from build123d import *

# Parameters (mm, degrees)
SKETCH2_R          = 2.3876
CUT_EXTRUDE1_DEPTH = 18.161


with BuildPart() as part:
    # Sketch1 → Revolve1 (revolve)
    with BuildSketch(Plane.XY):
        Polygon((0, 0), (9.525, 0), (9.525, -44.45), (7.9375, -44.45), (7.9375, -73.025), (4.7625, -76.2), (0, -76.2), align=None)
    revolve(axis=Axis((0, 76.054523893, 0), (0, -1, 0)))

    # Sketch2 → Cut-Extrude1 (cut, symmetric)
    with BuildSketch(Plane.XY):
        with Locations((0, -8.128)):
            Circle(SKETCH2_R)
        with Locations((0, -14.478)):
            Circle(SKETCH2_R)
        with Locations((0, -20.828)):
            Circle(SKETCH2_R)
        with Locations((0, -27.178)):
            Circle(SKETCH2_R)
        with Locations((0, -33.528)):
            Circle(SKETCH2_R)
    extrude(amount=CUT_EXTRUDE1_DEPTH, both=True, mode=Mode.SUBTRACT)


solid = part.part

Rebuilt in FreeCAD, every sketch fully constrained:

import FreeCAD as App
import Part
import Sketcher

V = App.Vector
Q = App.Units.Quantity

doc = App.newDocument("Part")
body = doc.addObject("PartDesign::Body", "Body")

sketch1 = body.newObject("Sketcher::SketchObject", "Sketch")
sketch1.AttachmentSupport = (doc.getObject("XY_Plane"), [""])
sketch1.MapMode = "FlatFace"
sketch1.addGeometry(Part.LineSegment(V(9.5, 0, 0), V(0, 0, 0)), False)
sketch1.addGeometry(Part.LineSegment(V(0, 0, 0), V(0, -76.2, 0)), False)
sketch1.addGeometry(Part.LineSegment(V(0, -76.2, 0), V(4.8, -76.2, 0)), False)
sketch1.addGeometry(Part.LineSegment(V(4.8, -76.2, 0), V(7.9, -73, 0)), False)
sketch1.addGeometry(Part.LineSegment(V(7.9, -73, 0), V(7.9, -44.5, 0)), False)
sketch1.addGeometry(Part.LineSegment(V(7.9, -44.5, 0), V(9.5, -44.5, 0)), False)
sketch1.addGeometry(Part.LineSegment(V(9.5, -44.5, 0), V(9.5, 0, 0)), False)
sketch1.addConstraint(Sketcher.Constraint("Coincident", 0, 2, 1, 1))
sketch1.addConstraint(Sketcher.Constraint("Coincident", 1, 2, 2, 1))
sketch1.addConstraint(Sketcher.Constraint("Coincident", 2, 2, 3, 1))
sketch1.addConstraint(Sketcher.Constraint("Coincident", 3, 2, 4, 1))
sketch1.addConstraint(Sketcher.Constraint("Coincident", 4, 2, 5, 1))
sketch1.addConstraint(Sketcher.Constraint("Coincident", 5, 2, 6, 1))
sketch1.addConstraint(Sketcher.Constraint("Coincident", 6, 2, 0, 1))
sketch1.addConstraint(Sketcher.Constraint("Horizontal", 0))
sketch1.addConstraint(Sketcher.Constraint("Vertical", 1))
sketch1.addConstraint(Sketcher.Constraint("Horizontal", 2))
sketch1.addConstraint(Sketcher.Constraint("Vertical", 4))
sketch1.addConstraint(Sketcher.Constraint("Horizontal", 5))
sketch1.addConstraint(Sketcher.Constraint("Vertical", 6))
sketch1.addConstraint(Sketcher.Constraint("Coincident", 0, 2, -1, 1))
sketch1.addConstraint(Sketcher.Constraint("DistanceY", 1, 2, 1, 1, Q("3 in")))
sketch1.addConstraint(Sketcher.Constraint("Angle", 3, Q("45 deg")))
sketch1.addConstraint(Sketcher.Constraint("DistanceY", 6, 1, 6, 2, Q("1.75 in")))
sketch1.addConstraint(Sketcher.Constraint("DistanceX", 0, 2, 0, 1, Q("0.375 in")))
sketch1.addConstraint(Sketcher.Constraint("DistanceX", 2, 1, 2, 2, Q("0.1875 in")))
sketch1.addConstraint(Sketcher.Constraint("DistanceX", 5, 1, 5, 2, Q("0.0625 in")))
revolution = body.newObject("PartDesign::Revolution", "Revolution")
revolution.Profile = sketch1
revolution.ReferenceAxis = (sketch1, ["V_Axis"])
revolution.Angle = 360

sketch2 = body.newObject("Sketcher::SketchObject", "Sketch001")
sketch2.AttachmentSupport = (doc.getObject("XY_Plane"), [""])
sketch2.MapMode = "FlatFace"
sketch2.addGeometry(Part.Circle(V(0, -8.1, 0), V(0, 0, 1), 2.4), False)
sketch2.addGeometry(Part.Circle(V(0, -14.5, 0), V(0, 0, 1), 2.4), False)
sketch2.addGeometry(Part.Circle(V(0, -20.8, 0), V(0, 0, 1), 2.4), False)
sketch2.addGeometry(Part.Circle(V(0, -27.2, 0), V(0, 0, 1), 2.4), False)
sketch2.addGeometry(Part.Circle(V(0, -33.5, 0), V(0, 0, 1), 2.4), False)
sketch2.addConstraint(Sketcher.Constraint("Equal", 0, 1))
sketch2.addConstraint(Sketcher.Constraint("Equal", 1, 2))
sketch2.addConstraint(Sketcher.Constraint("Equal", 2, 3))
sketch2.addConstraint(Sketcher.Constraint("Equal", 3, 4))
sketch2.addConstraint(Sketcher.Constraint("PointOnObject", 0, 3, -2))
sketch2.addConstraint(Sketcher.Constraint("PointOnObject", 1, 3, -2))
sketch2.addConstraint(Sketcher.Constraint("PointOnObject", 2, 3, -2))
sketch2.addConstraint(Sketcher.Constraint("PointOnObject", 3, 3, -2))
sketch2.addConstraint(Sketcher.Constraint("PointOnObject", 4, 3, -2))
sketch2.addConstraint(Sketcher.Constraint("Diameter", 0, Q("0.188 in")))
sketch2.addConstraint(Sketcher.Constraint("DistanceY", 4, 3, 0, 3, Q("1 in")))
sketch2.addConstraint(Sketcher.Constraint("DistanceY", 2, 3, 0, 3, Q("0.5 in")))
sketch2.addConstraint(Sketcher.Constraint("DistanceY", 3, 3, 1, 3, Q("0.5 in")))
sketch2.addConstraint(Sketcher.Constraint("DistanceY", 0, 3, -1, 1, Q("0.32 in")))
sketch2.addConstraint(Sketcher.Constraint("DistanceY", 1, 3, -1, 1, Q("0.57 in")))
pocket1 = body.newObject("PartDesign::Pocket", "Pocket")
pocket1.Profile = sketch2
pocket1.Length = Q("1.43 in")
pocket1.Midplane = True

doc.recompute()
